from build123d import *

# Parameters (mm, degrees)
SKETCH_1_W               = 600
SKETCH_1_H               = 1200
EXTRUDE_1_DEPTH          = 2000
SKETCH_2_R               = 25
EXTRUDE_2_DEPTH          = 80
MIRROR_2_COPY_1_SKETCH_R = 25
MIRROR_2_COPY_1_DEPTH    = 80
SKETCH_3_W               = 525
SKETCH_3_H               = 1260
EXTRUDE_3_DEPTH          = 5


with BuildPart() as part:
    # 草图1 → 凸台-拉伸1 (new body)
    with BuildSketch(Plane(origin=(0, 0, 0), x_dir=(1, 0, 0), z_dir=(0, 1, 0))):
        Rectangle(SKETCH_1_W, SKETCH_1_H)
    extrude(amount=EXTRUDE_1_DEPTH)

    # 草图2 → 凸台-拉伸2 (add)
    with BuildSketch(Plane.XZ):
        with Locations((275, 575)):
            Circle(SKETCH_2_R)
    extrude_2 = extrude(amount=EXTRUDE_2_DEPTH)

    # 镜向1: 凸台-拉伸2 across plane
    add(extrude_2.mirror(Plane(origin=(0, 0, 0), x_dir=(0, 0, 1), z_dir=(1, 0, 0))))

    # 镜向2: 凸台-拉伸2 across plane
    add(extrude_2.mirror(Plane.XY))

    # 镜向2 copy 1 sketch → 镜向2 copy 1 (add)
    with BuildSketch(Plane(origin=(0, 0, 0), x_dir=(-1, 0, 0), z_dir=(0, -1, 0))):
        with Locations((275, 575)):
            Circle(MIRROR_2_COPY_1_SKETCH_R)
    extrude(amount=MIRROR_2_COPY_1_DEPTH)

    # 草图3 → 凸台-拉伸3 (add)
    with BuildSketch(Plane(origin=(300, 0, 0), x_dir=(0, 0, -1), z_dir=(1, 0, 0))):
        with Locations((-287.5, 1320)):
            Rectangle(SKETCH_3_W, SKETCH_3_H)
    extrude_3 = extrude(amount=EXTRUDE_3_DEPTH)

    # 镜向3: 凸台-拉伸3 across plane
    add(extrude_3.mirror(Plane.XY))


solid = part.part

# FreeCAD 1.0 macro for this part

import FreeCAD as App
import Part
import Sketcher
from FreeCAD import Vector
Q = App.Units.Quantity


def add_polygon(sketch, points):
    """Adds a closed chain of lines whose ends are joined by coincident constraints."""
    first, n = sketch.GeometryCount, len(points)
    for a, b in zip(points, points[1:] + points[:1]):
        sketch.addGeometry(Part.LineSegment(App.Vector(*a, 0), App.Vector(*b, 0)), False)
    for i in range(n):
        sketch.addConstraint(Sketcher.Constraint("Coincident", first + i, 2, first + (i + 1) % n, 1))

doc = App.newDocument("Part")
body = doc.addObject("PartDesign::Body", "Body")

sketch1 = body.newObject("Sketcher::SketchObject", "Sketch")
sketch1.AttachmentSupport = (doc.getObject("XZ_Plane"), [""])
sketch1.MapMode = "FlatFace"
add_polygon(sketch1, [(-300, -600), (-300, 600), (300, 600), (300, -600)])
sketch1.addConstraint([
    Sketcher.Constraint("Vertical", 0),
    Sketcher.Constraint("Horizontal", 1),
    Sketcher.Constraint("Vertical", 2),
    Sketcher.Constraint("Horizontal", 3),
    Sketcher.Constraint("Symmetric", 0, 2, 2, 2, -1, 1),
    Sketcher.Constraint("DistanceX", 1, 1, 1, 2, Q("600 mm")),
    Sketcher.Constraint("DistanceY", 0, 1, 0, 2, Q("1200 mm")),
])
pad1 = body.newObject("PartDesign::Pad", "Pad")
pad1.Profile = sketch1
pad1.Length = 2000
pad1.Reversed = True

sketch2 = body.newObject("Sketcher::SketchObject", "Sketch001")
sketch2.AttachmentSupport = (doc.getObject("XZ_Plane"), [""])
sketch2.MapMode = "FlatFace"
sketch2.addGeometry(Part.Circle(Vector(275, 575, 0), Vector(0, 0, 1), 25), False)
sketch2.addConstraint([
    Sketcher.Constraint("Diameter", 0, Q("50 mm")),
    Sketcher.Constraint("DistanceX", -1, 1, 0, 3, Q("275 mm")),
    Sketcher.Constraint("DistanceY", -1, 1, 0, 3, Q("575 mm")),
])
pad2 = body.newObject("PartDesign::Pad", "Pad001")
pad2.Profile = sketch2
pad2.Length = 80
doc.recompute()

mirrored = body.newObject("PartDesign::Mirrored", "Mirrored")
mirrored.Originals = [pad2]
mirrored.MirrorPlane = (doc.getObject("YZ_Plane"), [""])
body.Tip = mirrored
doc.recompute()

mirrored2 = body.newObject("PartDesign::Mirrored", "Mirrored001")
mirrored2.Originals = [pad2]
mirrored2.MirrorPlane = (doc.getObject("XY_Plane"), [""])
body.Tip = mirrored2

sketch3 = body.newObject("Sketcher::SketchObject", "Sketch002")
sketch3.AttachmentSupport = (doc.getObject("XZ_Plane"), [""])
sketch3.MapMode = "FlatFace"
sketch3.addGeometry(Part.Circle(Vector(-275, -575, 0), Vector(0, 0, 1), 25), False)
sketch3.addConstraint([
    Sketcher.Constraint("Diameter", 0, Q("50 mm")),
    Sketcher.Constraint("DistanceX", 0, 3, -1, 1, Q("275 mm")),
    Sketcher.Constraint("DistanceY", 0, 3, -1, 1, Q("575 mm")),
])
pad3 = body.newObject("PartDesign::Pad", "Pad002")
pad3.Profile = sketch3
pad3.Length = 80

sketch4 = body.newObject("Sketcher::SketchObject", "Sketch003")
sketch4.AttachmentSupport = (doc.getObject("YZ_Plane"), [""])
sketch4.MapMode = "FlatFace"
sketch4.AttachmentOffset = App.Placement(Vector(0, 0, 300), App.Rotation())
add_polygon(sketch4, [(1950, 550), (690, 550), (690, 25), (1950, 25)])
sketch4.addConstraint([
    Sketcher.Constraint("Horizontal", 0),
    Sketcher.Constraint("Vertical", 1),
    Sketcher.Constraint("Horizontal", 2),
    Sketcher.Constraint("Vertical", 3),
    Sketcher.Constraint("DistanceX", 0, 2, 0, 1, Q("1260 mm")),
    Sketcher.Constraint("DistanceY", 1, 2, 1, 1, Q("525 mm")),
    Sketcher.Constraint("DistanceX", -1, 1, 0, 2, Q("690 mm")),
    Sketcher.Constraint("DistanceY", -1, 1, 0, 2, Q("550 mm")),
])
pad4 = body.newObject("PartDesign::Pad", "Pad003")
pad4.Profile = sketch4
pad4.Length = 5
doc.recompute()

mirrored3 = body.newObject("PartDesign::Mirrored", "Mirrored002")
mirrored3.Originals = [pad4]
mirrored3.MirrorPlane = (doc.getObject("XY_Plane"), [""])
body.Tip = mirrored3

doc.recompute()
